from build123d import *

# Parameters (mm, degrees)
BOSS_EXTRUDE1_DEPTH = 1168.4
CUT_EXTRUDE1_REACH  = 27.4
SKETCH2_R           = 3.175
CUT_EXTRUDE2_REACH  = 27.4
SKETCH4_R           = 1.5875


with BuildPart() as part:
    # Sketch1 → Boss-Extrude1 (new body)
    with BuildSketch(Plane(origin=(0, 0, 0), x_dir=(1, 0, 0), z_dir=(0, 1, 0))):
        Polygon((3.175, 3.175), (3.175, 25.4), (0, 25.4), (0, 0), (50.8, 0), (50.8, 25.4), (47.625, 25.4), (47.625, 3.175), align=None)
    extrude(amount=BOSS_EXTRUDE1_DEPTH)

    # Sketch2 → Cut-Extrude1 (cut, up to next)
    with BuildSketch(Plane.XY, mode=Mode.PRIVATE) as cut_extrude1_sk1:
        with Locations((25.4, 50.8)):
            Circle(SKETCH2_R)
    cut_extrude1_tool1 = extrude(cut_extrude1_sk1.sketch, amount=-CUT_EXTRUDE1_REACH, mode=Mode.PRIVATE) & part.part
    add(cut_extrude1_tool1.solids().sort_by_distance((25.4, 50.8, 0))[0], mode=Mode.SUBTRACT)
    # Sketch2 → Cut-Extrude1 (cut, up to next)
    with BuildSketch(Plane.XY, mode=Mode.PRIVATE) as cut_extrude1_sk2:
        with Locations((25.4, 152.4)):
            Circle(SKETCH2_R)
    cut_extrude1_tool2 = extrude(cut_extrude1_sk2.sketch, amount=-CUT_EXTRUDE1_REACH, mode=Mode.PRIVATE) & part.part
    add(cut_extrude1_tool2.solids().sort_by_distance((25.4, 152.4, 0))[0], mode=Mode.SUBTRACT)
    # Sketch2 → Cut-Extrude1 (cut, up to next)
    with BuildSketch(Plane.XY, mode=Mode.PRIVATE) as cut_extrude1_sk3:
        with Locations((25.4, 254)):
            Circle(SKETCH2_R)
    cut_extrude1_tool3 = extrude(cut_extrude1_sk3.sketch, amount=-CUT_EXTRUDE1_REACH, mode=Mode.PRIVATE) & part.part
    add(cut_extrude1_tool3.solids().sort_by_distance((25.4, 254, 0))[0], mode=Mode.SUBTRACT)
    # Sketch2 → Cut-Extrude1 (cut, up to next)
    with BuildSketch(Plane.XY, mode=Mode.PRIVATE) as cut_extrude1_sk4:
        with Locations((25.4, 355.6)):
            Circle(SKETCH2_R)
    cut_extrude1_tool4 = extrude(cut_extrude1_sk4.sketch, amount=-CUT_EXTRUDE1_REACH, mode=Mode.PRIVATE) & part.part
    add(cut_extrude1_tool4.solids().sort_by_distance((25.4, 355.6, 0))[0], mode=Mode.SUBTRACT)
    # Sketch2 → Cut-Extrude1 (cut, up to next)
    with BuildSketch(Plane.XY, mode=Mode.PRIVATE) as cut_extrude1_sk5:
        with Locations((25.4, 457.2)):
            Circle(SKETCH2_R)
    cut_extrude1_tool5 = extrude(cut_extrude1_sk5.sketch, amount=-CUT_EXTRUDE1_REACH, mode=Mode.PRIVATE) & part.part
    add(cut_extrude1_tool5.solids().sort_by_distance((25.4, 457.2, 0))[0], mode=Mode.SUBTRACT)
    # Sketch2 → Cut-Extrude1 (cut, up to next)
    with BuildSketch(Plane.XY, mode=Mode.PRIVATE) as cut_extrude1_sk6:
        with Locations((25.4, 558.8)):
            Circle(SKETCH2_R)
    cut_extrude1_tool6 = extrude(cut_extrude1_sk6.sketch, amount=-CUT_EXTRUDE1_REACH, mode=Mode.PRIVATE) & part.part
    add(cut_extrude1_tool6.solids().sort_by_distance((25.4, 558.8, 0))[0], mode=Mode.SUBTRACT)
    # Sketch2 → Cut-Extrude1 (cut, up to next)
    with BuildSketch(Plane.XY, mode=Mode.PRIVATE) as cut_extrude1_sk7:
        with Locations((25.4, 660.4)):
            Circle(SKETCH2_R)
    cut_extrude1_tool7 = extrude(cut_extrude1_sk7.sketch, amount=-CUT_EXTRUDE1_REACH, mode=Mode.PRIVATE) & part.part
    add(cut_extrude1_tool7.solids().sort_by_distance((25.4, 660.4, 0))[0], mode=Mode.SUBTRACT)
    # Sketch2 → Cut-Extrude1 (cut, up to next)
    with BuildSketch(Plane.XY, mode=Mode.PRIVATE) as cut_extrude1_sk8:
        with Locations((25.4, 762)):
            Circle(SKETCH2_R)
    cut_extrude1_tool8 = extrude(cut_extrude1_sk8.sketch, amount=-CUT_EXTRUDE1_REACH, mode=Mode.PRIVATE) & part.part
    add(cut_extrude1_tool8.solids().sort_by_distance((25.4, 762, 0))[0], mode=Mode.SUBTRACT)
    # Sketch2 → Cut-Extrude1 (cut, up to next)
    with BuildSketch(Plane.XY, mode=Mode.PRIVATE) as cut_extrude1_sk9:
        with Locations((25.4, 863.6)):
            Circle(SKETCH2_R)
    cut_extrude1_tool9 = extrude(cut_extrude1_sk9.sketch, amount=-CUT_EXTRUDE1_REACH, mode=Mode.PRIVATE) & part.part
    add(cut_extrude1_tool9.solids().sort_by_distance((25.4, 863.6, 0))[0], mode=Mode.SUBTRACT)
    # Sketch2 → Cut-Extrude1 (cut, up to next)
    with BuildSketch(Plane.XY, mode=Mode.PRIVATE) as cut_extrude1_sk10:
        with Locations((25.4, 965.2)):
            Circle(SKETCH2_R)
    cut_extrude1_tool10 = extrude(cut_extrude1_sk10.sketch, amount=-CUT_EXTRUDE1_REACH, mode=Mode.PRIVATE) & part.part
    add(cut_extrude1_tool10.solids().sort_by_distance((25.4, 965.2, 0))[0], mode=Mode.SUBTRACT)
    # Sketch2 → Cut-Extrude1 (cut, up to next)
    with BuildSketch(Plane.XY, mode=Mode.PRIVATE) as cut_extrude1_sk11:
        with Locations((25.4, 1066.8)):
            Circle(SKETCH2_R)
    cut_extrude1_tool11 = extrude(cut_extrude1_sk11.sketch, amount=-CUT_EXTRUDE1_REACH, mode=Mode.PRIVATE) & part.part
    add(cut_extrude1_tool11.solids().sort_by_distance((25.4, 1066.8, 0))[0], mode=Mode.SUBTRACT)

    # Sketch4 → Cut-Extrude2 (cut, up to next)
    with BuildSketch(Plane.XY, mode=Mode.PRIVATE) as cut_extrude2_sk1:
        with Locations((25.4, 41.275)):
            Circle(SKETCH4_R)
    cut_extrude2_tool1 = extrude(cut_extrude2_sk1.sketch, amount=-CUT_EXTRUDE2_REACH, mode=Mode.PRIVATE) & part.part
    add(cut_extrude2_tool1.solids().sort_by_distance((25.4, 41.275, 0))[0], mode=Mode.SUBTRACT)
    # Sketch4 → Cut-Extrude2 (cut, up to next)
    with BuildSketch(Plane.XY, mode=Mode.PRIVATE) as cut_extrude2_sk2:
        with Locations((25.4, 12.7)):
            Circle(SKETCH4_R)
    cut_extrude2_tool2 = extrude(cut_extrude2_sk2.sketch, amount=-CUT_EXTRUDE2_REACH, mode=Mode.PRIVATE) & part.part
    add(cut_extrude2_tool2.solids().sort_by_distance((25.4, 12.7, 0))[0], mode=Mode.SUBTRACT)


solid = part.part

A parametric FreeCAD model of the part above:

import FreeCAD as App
import Part
import Sketcher

V = App.Vector
Q = App.Units.Quantity

doc = App.newDocument("Part")
body = doc.addObject("PartDesign::Body", "Body")

# Sketch on XZ plane
sketch1 = doc.addObject("Sketcher::SketchObject", "Sketch")
body.addObject(sketch1)
sketch1.AttachmentSupport = (doc.XZ_Plane, [""])
sketch1.MapMode = "FlatFace"
sketch1.addGeometry([
    Part.LineSegment(V(3.2, -3.2, 0), V(3.2, -25.4, 0)),  # 0
    Part.LineSegment(V(3.2, -25.4, 0), V(0, -25.4, 0)),  # 1
    Part.LineSegment(V(0, -25.4, 0), V(0, 0, 0)),  # 2
    Part.LineSegment(V(0, 0, 0), V(50.8, 0, 0)),  # 3
    Part.LineSegment(V(50.8, 0, 0), V(50.8, -25.4, 0)),  # 4
    Part.LineSegment(V(50.8, -25.4, 0), V(47.6, -25.4, 0)),  # 5
    Part.LineSegment(V(47.6, -25.4, 0), V(47.6, -3.2, 0)),  # 6
    Part.LineSegment(V(47.6, -3.2, 0), V(3.2, -3.2, 0)),  # 7
], False)
sketch1.addConstraint([
    Sketcher.Constraint("Coincident", 0, 2, 1, 1),
    Sketcher.Constraint("Coincident", 1, 2, 2, 1),
    Sketcher.Constraint("Coincident", 2, 2, 3, 1),
    Sketcher.Constraint("Coincident", 3, 2, 4, 1),
    Sketcher.Constraint("Coincident", 4, 2, 5, 1),
    Sketcher.Constraint("Coincident", 5, 2, 6, 1),
    Sketcher.Constraint("Coincident", 6, 2, 7, 1),
    Sketcher.Constraint("Coincident", 7, 2, 0, 1),
    Sketcher.Constraint("Vertical", 0),
    Sketcher.Constraint("Horizontal", 1),
    Sketcher.Constraint("Vertical", 2),
    Sketcher.Constraint("Horizontal", 3),
    Sketcher.Constraint("Vertical", 4),
    Sketcher.Constraint("Horizontal", 5),
    Sketcher.Constraint("Vertical", 6),
    Sketcher.Constraint("Horizontal", 7),
    Sketcher.Constraint("Coincident", 2, 2, -1, 1),
    Sketcher.Constraint("Horizontal", 1, 2, 4, 2),
    Sketcher.Constraint("Equal", 1, 5),
    Sketcher.Constraint("DistanceX", 3, 1, 3, 2, Q("2 in")),
    Sketcher.Constraint("DistanceY", 2, 1, 2, 2, Q("1 in")),
    Sketcher.Constraint("DistanceX", 7, 2, 7, 1, Q("1.75 in")),
    Sketcher.Constraint("DistanceY", 0, 2, 0, 1, Q("0.875 in")),
])
pad1 = doc.addObject("PartDesign::Pad", "Pad")
body.addObject(pad1)
pad1.Profile = sketch1
pad1.Length = Q("46 in")
pad1.Reversed = True

# Sketch on XY plane
sketch2 = doc.addObject("Sketcher::SketchObject", "Sketch001")
body.addObject(sketch2)
sketch2.AttachmentSupport = (doc.XY_Plane, [""])
sketch2.MapMode = "FlatFace"
sketch2.addGeometry(Part.Circle(V(25.4, 50.8, 0), V(0, 0, 1), 3.2), False)
sketch2.addConstraint([
    Sketcher.Constraint("Diameter", 0, Q("0.25 in")),
    Sketcher.Constraint("DistanceX", -1, 1, 0, 3, Q("1 in")),
    Sketcher.Constraint("DistanceY", -1, 1, 0, 3, Q("2 in")),
])
pocket1 = doc.addObject("PartDesign::Pocket", "Pocket")
body.addObject(pocket1)
pocket1.Profile = sketch2
pocket1.Type = "UpToFirst"

# Sketch on XY plane
sketch3 = doc.addObject("Sketcher::SketchObject", "Sketch002")
body.addObject(sketch3)
sketch3.AttachmentSupport = (doc.XY_Plane, [""])
sketch3.MapMode = "FlatFace"
sketch3.addGeometry(Part.Circle(V(25.4, 152.4, 0), V(0, 0, 1), 3.2), False)
sketch3.addConstraint([
    Sketcher.Constraint("Diameter", 0, Q("0.25 in")),
    Sketcher.Constraint("DistanceX", -1, 1, 0, 3, Q("1 in")),
    Sketcher.Constraint("DistanceY", -1, 1, 0, 3, Q("6 in")),
])
pocket2 = doc.addObject("PartDesign::Pocket", "Pocket001")
body.addObject(pocket2)
pocket2.Profile = sketch3
pocket2.Type = "UpToFirst"

# Sketch on XY plane
sketch4 = doc.addObject("Sketcher::SketchObject", "Sketch003")
body.addObject(sketch4)
sketch4.AttachmentSupport = (doc.XY_Plane, [""])
sketch4.MapMode = "FlatFace"
sketch4.addGeometry(Part.Circle(V(25.4, 254, 0), V(0, 0, 1), 3.2), False)
sketch4.addConstraint([
    Sketcher.Constraint("Diameter", 0, Q("0.25 in")),
    Sketcher.Constraint("DistanceX", -1, 1, 0, 3, Q("1 in")),
    Sketcher.Constraint("DistanceY", -1, 1, 0, 3, Q("10 in")),
])
pocket3 = doc.addObject("PartDesign::Pocket", "Pocket002")
body.addObject(pocket3)
pocket3.Profile = sketch4
pocket3.Type = "UpToFirst"

# Sketch on XY plane
sketch5 = doc.addObject("Sketcher::SketchObject", "Sketch004")
body.addObject(sketch5)
sketch5.AttachmentSupport = (doc.XY_Plane, [""])
sketch5.MapMode = "FlatFace"
sketch5.addGeometry(Part.Circle(V(25.4, 355.6, 0), V(0, 0, 1), 3.2), False)
sketch5.addConstraint([
    Sketcher.Constraint("Diameter", 0, Q("0.25 in")),
    Sketcher.Constraint("DistanceX", -1, 1, 0, 3, Q("1 in")),
    Sketcher.Constraint("DistanceY", -1, 1, 0, 3, Q("14 in")),
])
pocket4 = doc.addObject("PartDesign::Pocket", "Pocket003")
body.addObject(pocket4)
pocket4.Profile = sketch5
pocket4.Type = "UpToFirst"

# Sketch on XY plane
sketch6 = doc.addObject("Sketcher::SketchObject", "Sketch005")
body.addObject(sketch6)
sketch6.AttachmentSupport = (doc.XY_Plane, [""])
sketch6.MapMode = "FlatFace"
sketch6.addGeometry(Part.Circle(V(25.4, 457.2, 0), V(0, 0, 1), 3.2), False)
sketch6.addConstraint([
    Sketcher.Constraint("Diameter", 0, Q("0.25 in")),
    Sketcher.Constraint("DistanceX", -1, 1, 0, 3, Q("1 in")),
    Sketcher.Constraint("DistanceY", -1, 1, 0, 3, Q("18 in")),
])
pocket5 = doc.addObject("PartDesign::Pocket", "Pocket004")
body.addObject(pocket5)
pocket5.Profile = sketch6
pocket5.Type = "UpToFirst"

# Sketch on XY plane
sketch7 = doc.addObject("Sketcher::SketchObject", "Sketch006")
body.addObject(sketch7)
sketch7.AttachmentSupport = (doc.XY_Plane, [""])
sketch7.MapMode = "FlatFace"
sketch7.addGeometry(Part.Circle(V(25.4, 558.8, 0), V(0, 0, 1), 3.2), False)
sketch7.addConstraint([
    Sketcher.Constraint("Diameter", 0, Q("0.25 in")),
    Sketcher.Constraint("DistanceX", -1, 1, 0, 3, Q("1 in")),
    Sketcher.Constraint("DistanceY", -1, 1, 0, 3, Q("22 in")),
])
pocket6 = doc.addObject("PartDesign::Pocket", "Pocket005")
body.addObject(pocket6)
pocket6.Profile = sketch7
pocket6.Type = "UpToFirst"

# Sketch on XY plane
sketch8 = doc.addObject("Sketcher::SketchObject", "Sketch007")
body.addObject(sketch8)
sketch8.AttachmentSupport = (doc.XY_Plane, [""])
sketch8.MapMode = "FlatFace"
sketch8.addGeometry(Part.Circle(V(25.4, 660.4, 0), V(0, 0, 1), 3.2), False)
sketch8.addConstraint([
    Sketcher.Constraint("Diameter", 0, Q("0.25 in")),
    Sketcher.Constraint("DistanceX", -1, 1, 0, 3, Q("1 in")),
    Sketcher.Constraint("DistanceY", -1, 1, 0, 3, Q("26 in")),
])
pocket7 = doc.addObject("PartDesign::Pocket", "Pocket006")
body.addObject(pocket7)
pocket7.Profile = sketch8
pocket7.Type = "UpToFirst"

# Sketch on XY plane
sketch9 = doc.addObject("Sketcher::SketchObject", "Sketch008")
body.addObject(sketch9)
sketch9.AttachmentSupport = (doc.XY_Plane, [""])
sketch9.MapMode = "FlatFace"
sketch9.addGeometry(Part.Circle(V(25.4, 762, 0), V(0, 0, 1), 3.2), False)
sketch9.addConstraint([
    Sketcher.Constraint("Diameter", 0, Q("0.25 in")),
    Sketcher.Constraint("DistanceX", -1, 1, 0, 3, Q("1 in")),
    Sketcher.Constraint("DistanceY", -1, 1, 0, 3, Q("30 in")),
])
pocket8 = doc.addObject("PartDesign::Pocket", "Pocket007")
body.addObject(pocket8)
pocket8.Profile = sketch9
pocket8.Type = "UpToFirst"

# Sketch on XY plane
sketch10 = doc.addObject("Sketcher::SketchObject", "Sketch009")
body.addObject(sketch10)
sketch10.AttachmentSupport = (doc.XY_Plane, [""])
sketch10.MapMode = "FlatFace"
sketch10.addGeometry(Part.Circle(V(25.4, 863.6, 0), V(0, 0, 1), 3.2), False)
sketch10.addConstraint([
    Sketcher.Constraint("Diameter", 0, Q("0.25 in")),
    Sketcher.Constraint("DistanceX", -1, 1, 0, 3, Q("1 in")),
    Sketcher.Constraint("DistanceY", -1, 1, 0, 3, Q("34 in")),
])
pocket9 = doc.addObject("PartDesign::Pocket", "Pocket008")
body.addObject(pocket9)
pocket9.Profile = sketch10
pocket9.Type = "UpToFirst"

# Sketch on XY plane
sketch11 = doc.addObject("Sketcher::SketchObject", "Sketch010")
body.addObject(sketch11)
sketch11.AttachmentSupport = (doc.XY_Plane, [""])
sketch11.MapMode = "FlatFace"
sketch11.addGeometry(Part.Circle(V(25.4, 965.2, 0), V(0, 0, 1), 3.2), False)
sketch11.addConstraint([
    Sketcher.Constraint("Diameter", 0, Q("0.25 in")),
    Sketcher.Constraint("DistanceX", -1, 1, 0, 3, Q("1 in")),
    Sketcher.Constraint("DistanceY", -1, 1, 0, 3, Q("38 in")),
])
pocket10 = doc.addObject("PartDesign::Pocket", "Pocket009")
body.addObject(pocket10)
pocket10.Profile = sketch11
pocket10.Type = "UpToFirst"

# Sketch on XY plane
sketch12 = doc.addObject("Sketcher::SketchObject", "Sketch011")
body.addObject(sketch12)
sketch12.AttachmentSupport = (doc.XY_Plane, [""])
sketch12.MapMode = "FlatFace"
sketch12.addGeometry(Part.Circle(V(25.4, 1066.8, 0), V(0, 0, 1), 3.2), False)
sketch12.addConstraint([
    Sketcher.Constraint("Diameter", 0, Q("0.25 in")),
    Sketcher.Constraint("DistanceX", -1, 1, 0, 3, Q("1 in")),
    Sketcher.Constraint("DistanceY", -1, 1, 0, 3, Q("42 in")),
])
pocket11 = doc.addObject("PartDesign::Pocket", "Pocket010")
body.addObject(pocket11)
pocket11.Profile = sketch12
pocket11.Type = "UpToFirst"

# Sketch on XY plane
sketch13 = doc.addObject("Sketcher::SketchObject", "Sketch012")
body.addObject(sketch13)
sketch13.AttachmentSupport = (doc.XY_Plane, [""])
sketch13.MapMode = "FlatFace"
sketch13.addGeometry(Part.Circle(V(25.4, 41.3, 0), V(0, 0, 1), 1.6), False)
sketch13.addConstraint([
    Sketcher.Constraint("Diameter", 0, Q("0.125 in")),
    Sketcher.Constraint("DistanceX", -1, 1, 0, 3, Q("1 in")),
    Sketcher.Constraint("DistanceY", -1, 1, 0, 3, Q("1.625 in")),
])
pocket12 = doc.addObject("PartDesign::Pocket", "Pocket011")
body.addObject(pocket12)
pocket12.Profile = sketch13
pocket12.Type = "UpToFirst"

# Sketch on XY plane
sketch14 = doc.addObject("Sketcher::SketchObject", "Sketch013")
body.addObject(sketch14)
sketch14.AttachmentSupport = (doc.XY_Plane, [""])
sketch14.MapMode = "FlatFace"
sketch14.addGeometry(Part.Circle(V(25.4, 12.7, 0), V(0, 0, 1), 1.6), False)
sketch14.addConstraint([
    Sketcher.Constraint("Diameter", 0, Q("0.125 in")),
    Sketcher.Constraint("DistanceX", -1, 1, 0, 3, Q("1 in")),
    Sketcher.Constraint("DistanceY", -1, 1, 0, 3, Q("0.5 in")),
])
pocket13 = doc.addObject("PartDesign::Pocket", "Pocket012")
body.addObject(pocket13)
pocket13.Profile = sketch14
pocket13.Type = "UpToFirst"

doc.recompute()
